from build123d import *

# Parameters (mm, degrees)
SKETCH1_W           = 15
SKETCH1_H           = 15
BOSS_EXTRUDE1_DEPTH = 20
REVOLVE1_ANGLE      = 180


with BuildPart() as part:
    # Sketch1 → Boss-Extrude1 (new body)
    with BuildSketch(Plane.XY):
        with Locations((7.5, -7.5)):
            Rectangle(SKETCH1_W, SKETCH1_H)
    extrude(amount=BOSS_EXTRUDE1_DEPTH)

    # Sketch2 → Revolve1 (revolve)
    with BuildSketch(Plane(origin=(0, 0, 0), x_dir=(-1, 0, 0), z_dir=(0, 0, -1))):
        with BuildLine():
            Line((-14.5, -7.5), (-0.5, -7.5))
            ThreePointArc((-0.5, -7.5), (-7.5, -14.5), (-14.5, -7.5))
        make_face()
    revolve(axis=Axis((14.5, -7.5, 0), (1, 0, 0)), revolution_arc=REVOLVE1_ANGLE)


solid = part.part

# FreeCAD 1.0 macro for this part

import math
import FreeCAD as App
import Part
import Sketcher
from FreeCAD import Vector
Q = App.Units.Quantity


def add_polygon(sketch, points):
    """Adds a closed chain of lines whose ends are joined by coincident constraints."""
    first, n = sketch.GeometryCount, len(points)
    for a, b in zip(points, points[1:] + points[:1]):
        sketch.addGeometry(Part.LineSegment(App.Vector(*a, 0), App.Vector(*b, 0)), False)
    for i in range(n):
        sketch.addConstraint(Sketcher.Constraint("Coincident", first + i, 2, first + (i + 1) % n, 1))

doc = App.newDocument("Part")
body = doc.addObject("PartDesign::Body", "Body")

# Sketch on XY plane
sketch1 = doc.addObject("Sketcher::SketchObject", "Sketch")
body.addObject(sketch1)
sketch1.AttachmentSupport = (doc.XY_Plane, [""])
sketch1.MapMode = "FlatFace"
add_polygon(sketch1, [(0, 0), (0, -15), (15, -15), (15, 0)])  # lines 0-3
sketch1.addConstraint(Sketcher.Constraint("Vertical", 0))
sketch1.addConstraint(Sketcher.Constraint("Horizontal", 1))
sketch1.addConstraint(Sketcher.Constraint("Vertical", 2))
sketch1.addConstraint(Sketcher.Constraint("Horizontal", 3))
sketch1.addConstraint(Sketcher.Constraint("Coincident", 3, 2, -1, 1))
sketch1.addConstraint(Sketcher.Constraint("Equal", 3, 0))
sketch1.addConstraint(Sketcher.Constraint("DistanceX", 1, 1, 1, 2, Q("15 mm")))
pad1 = doc.addObject("PartDesign::Pad", "Pad")
body.addObject(pad1)
pad1.Profile = sketch1
pad1.Length = 20

# Sketch on XY plane
sketch2 = doc.addObject("Sketcher::SketchObject", "Sketch001")
body.addObject(sketch2)
sketch2.AttachmentSupport = (doc.XY_Plane, [""])
sketch2.MapMode = "FlatFace"
sketch2.addGeometry(Part.LineSegment(Vector(0, -8, 0), Vector(14, -8, 0)), False)
sketch2.addGeometry(Part.ArcOfCircle(Part.Circle(Vector(8, -8, 0), Vector(0, 0, 1), 7), math.radians(180), math.radians(360)), False)
sketch2.addGeometry(Part.LineSegment(Vector(0, -8, 0), Vector(14, -8, 0)), True)  # axis
sketch2.addConstraint(Sketcher.Constraint("Coincident", 0, 1, 1, 1))
sketch2.addConstraint(Sketcher.Constraint("Coincident", 1, 2, 0, 2))
sketch2.addConstraint(Sketcher.Constraint("Horizontal", 0))
sketch2.addConstraint(Sketcher.Constraint("Horizontal", 2))
sketch2.addConstraint(Sketcher.Constraint("Coincident", 2, 1, 0, 1))
sketch2.addConstraint(Sketcher.Constraint("Horizontal", 1, 3, 0, 1))
sketch2.addConstraint(Sketcher.Constraint("Equal", 0, 2))
sketch2.addConstraint(Sketcher.Constraint("Radius", 1, Q("7 mm")))
sketch2.addConstraint(Sketcher.Constraint("DistanceX", -1, 1, 1, 3, Q("7.5 mm")))
sketch2.addConstraint(Sketcher.Constraint("DistanceY", 1, 3, -1, 1, Q("7.5 mm")))
revolution = doc.addObject("PartDesign::Revolution", "Revolution")
body.addObject(revolution)
revolution.Profile = sketch2
revolution.ReferenceAxis = (sketch2, ["Axis0"])
revolution.Angle = 180

doc.recompute()
